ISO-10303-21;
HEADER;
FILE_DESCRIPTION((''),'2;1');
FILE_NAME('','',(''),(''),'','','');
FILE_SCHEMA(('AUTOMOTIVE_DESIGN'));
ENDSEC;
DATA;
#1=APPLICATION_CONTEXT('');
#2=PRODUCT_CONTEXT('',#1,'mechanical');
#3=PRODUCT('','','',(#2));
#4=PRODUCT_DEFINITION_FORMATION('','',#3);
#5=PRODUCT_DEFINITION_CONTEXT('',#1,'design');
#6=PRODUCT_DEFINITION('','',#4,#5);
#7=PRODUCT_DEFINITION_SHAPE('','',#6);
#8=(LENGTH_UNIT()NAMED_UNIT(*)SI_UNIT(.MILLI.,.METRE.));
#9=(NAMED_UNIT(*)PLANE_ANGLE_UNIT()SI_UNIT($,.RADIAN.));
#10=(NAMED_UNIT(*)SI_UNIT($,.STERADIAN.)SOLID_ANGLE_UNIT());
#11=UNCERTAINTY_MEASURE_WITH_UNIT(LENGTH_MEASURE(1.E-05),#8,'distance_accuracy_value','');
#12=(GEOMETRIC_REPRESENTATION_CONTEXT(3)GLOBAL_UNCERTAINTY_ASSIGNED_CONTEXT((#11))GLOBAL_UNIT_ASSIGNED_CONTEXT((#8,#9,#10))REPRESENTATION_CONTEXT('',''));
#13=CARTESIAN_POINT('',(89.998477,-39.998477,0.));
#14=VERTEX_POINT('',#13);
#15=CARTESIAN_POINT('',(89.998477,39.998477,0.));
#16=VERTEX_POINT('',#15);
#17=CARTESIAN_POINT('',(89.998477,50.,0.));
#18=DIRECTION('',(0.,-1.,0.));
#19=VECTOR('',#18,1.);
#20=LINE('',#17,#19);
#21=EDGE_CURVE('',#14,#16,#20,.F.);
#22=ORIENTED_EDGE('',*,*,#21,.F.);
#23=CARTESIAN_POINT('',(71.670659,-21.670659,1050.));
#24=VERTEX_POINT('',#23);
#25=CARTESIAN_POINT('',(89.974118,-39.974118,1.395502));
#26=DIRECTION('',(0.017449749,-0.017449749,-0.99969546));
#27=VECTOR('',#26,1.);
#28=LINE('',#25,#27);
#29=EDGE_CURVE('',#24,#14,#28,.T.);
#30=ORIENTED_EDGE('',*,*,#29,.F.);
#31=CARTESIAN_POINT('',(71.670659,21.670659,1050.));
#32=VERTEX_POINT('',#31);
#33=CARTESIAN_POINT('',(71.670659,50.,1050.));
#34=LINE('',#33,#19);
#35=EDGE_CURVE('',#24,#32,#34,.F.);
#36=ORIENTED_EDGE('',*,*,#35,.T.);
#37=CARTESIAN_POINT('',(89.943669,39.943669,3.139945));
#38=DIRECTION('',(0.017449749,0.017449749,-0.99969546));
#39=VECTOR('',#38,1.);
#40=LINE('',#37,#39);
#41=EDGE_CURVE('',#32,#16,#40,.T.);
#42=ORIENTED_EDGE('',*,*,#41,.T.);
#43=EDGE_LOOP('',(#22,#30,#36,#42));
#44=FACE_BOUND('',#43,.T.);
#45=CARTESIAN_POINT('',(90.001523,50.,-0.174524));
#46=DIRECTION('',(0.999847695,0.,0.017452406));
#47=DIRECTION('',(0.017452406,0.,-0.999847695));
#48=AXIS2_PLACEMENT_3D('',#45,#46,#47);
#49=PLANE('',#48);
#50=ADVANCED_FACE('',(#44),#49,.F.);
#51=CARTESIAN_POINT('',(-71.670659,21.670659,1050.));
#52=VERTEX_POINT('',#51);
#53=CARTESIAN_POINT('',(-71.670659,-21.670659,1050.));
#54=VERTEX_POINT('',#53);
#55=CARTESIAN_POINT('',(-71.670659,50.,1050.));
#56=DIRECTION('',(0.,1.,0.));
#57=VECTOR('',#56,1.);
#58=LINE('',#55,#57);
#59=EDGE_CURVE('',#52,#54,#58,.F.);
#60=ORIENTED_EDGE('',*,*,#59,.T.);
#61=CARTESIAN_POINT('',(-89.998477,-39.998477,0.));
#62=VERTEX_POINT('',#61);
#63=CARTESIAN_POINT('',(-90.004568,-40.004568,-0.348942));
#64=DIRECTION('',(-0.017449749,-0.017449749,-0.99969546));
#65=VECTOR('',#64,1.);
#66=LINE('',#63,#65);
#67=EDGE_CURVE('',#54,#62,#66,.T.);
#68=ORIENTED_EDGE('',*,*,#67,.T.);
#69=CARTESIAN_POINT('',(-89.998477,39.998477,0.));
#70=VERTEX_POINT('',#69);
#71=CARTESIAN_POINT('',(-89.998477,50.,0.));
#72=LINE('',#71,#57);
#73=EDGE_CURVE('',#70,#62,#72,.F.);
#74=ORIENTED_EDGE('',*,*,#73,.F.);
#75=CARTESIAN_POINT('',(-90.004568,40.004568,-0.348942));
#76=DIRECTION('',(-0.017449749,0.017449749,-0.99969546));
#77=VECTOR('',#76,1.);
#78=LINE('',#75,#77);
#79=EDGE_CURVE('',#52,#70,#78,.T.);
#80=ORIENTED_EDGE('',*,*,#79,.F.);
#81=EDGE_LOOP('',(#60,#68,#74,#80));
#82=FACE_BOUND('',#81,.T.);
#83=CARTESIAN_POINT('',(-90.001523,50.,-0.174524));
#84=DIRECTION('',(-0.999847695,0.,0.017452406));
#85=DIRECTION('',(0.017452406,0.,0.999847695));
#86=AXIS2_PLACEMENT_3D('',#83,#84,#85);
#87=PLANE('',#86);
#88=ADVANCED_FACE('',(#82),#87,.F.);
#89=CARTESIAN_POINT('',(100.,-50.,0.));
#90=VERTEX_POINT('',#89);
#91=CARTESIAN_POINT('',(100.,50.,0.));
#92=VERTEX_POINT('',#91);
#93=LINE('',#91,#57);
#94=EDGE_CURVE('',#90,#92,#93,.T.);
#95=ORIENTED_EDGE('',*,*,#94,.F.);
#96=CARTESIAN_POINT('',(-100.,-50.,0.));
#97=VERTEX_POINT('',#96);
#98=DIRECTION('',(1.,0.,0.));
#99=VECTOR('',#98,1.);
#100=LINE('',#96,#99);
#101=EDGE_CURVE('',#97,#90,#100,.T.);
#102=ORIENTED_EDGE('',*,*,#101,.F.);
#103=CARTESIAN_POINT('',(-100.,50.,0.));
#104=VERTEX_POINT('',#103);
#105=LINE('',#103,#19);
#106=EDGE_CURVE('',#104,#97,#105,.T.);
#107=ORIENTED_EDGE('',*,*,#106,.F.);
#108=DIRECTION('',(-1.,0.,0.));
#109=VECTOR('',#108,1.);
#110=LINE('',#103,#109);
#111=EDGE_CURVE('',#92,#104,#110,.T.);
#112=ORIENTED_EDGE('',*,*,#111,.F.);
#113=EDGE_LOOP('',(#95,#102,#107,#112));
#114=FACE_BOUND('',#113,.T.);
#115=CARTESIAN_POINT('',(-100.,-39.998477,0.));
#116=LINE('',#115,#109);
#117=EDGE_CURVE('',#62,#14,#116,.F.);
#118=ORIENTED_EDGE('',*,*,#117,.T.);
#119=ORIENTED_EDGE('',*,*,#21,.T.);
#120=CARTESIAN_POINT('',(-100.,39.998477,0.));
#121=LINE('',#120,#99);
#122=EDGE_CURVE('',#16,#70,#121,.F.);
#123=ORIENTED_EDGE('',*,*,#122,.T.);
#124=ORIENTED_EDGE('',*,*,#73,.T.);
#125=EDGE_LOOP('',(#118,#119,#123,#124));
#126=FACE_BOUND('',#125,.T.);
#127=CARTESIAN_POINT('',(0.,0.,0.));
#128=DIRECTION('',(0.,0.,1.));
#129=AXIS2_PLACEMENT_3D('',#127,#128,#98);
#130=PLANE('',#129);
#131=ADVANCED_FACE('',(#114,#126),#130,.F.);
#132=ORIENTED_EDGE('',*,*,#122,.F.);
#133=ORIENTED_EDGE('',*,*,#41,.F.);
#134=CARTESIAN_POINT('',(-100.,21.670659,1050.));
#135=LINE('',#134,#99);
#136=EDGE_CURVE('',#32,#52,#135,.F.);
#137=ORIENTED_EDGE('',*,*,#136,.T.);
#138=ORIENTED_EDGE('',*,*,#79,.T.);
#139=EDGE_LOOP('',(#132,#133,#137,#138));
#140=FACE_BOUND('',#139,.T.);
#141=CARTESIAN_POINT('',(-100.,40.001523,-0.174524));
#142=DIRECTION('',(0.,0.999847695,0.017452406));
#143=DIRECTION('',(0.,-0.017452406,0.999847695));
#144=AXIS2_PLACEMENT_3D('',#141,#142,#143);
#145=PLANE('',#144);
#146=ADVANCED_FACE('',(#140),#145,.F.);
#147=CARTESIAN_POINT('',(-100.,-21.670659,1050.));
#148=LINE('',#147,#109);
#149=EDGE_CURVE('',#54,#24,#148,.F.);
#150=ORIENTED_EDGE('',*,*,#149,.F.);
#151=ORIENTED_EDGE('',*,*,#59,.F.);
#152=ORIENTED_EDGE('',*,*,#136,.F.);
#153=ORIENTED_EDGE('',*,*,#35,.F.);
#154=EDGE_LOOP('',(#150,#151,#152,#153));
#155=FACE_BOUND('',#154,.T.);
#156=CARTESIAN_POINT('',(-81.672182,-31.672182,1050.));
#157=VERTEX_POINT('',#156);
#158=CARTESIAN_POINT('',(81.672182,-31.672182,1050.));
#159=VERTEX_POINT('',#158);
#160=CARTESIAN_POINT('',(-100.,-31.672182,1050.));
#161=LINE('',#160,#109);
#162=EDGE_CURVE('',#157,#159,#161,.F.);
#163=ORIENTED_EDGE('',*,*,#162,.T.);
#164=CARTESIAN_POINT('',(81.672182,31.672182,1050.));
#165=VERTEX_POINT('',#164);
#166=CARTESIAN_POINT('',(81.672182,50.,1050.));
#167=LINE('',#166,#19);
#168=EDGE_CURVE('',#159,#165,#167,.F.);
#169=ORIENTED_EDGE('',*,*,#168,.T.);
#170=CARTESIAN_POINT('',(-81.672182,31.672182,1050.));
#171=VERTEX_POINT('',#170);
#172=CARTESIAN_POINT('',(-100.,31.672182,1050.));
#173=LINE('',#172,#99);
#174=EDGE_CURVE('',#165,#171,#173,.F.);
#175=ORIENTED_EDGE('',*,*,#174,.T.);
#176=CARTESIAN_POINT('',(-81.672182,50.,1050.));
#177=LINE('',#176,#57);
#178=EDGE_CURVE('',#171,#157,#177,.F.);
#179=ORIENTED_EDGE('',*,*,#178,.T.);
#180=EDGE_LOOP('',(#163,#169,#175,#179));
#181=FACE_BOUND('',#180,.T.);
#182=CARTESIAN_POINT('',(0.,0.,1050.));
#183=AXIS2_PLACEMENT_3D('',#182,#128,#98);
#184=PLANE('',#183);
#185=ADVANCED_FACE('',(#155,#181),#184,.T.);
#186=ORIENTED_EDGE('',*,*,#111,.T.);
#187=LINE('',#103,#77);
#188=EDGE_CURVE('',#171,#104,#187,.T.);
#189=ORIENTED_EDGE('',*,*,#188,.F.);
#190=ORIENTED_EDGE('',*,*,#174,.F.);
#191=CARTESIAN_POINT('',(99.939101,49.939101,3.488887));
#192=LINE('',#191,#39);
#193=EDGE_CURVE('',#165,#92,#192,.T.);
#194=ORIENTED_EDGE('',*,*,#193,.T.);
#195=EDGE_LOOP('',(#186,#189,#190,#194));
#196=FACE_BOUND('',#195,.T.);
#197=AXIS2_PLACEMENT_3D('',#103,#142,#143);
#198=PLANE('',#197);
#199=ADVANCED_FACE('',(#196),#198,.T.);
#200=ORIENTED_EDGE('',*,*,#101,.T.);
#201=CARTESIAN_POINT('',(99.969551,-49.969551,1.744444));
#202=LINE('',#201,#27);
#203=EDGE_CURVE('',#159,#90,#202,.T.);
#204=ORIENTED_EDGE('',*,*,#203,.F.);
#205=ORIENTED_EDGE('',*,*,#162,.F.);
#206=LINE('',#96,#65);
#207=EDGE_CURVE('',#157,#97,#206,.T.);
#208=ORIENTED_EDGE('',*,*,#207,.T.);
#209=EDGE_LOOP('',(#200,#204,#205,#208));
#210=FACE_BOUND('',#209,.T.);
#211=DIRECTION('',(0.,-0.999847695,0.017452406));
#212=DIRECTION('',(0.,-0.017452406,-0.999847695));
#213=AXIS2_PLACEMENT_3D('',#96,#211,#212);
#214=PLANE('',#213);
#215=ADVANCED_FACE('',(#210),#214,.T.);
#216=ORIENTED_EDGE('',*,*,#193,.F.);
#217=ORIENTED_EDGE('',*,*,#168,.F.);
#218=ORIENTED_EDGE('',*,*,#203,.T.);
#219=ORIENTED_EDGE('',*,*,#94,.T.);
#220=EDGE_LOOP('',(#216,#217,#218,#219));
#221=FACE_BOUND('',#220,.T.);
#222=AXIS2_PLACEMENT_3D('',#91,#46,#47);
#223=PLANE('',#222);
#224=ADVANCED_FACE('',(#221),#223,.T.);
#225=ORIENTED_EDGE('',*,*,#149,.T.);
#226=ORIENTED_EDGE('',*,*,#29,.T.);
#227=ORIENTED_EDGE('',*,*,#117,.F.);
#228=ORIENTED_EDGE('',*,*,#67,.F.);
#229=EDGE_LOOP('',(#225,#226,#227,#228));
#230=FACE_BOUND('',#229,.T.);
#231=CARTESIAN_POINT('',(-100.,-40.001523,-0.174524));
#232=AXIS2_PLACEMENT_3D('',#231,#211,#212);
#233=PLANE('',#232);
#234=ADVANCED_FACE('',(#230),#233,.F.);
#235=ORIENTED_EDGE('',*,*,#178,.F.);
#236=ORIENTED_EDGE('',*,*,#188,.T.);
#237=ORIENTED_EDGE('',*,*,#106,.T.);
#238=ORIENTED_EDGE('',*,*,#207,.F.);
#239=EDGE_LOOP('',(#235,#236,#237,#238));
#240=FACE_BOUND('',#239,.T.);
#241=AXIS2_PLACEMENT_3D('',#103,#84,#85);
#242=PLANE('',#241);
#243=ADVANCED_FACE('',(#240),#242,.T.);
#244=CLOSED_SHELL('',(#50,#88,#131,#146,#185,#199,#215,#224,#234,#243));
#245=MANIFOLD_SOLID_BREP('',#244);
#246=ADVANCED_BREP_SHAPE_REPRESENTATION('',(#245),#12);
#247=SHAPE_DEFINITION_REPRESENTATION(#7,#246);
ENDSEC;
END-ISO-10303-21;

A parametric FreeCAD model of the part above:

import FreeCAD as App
import Part
import Sketcher

V = App.Vector
Q = App.Units.Quantity


def faces_at(feature, points):
    """Names of the faces that lie closest to the given points."""
    faces = feature.Shape.Faces
    near = lambda p: min(range(len(faces)), key=lambda i: faces[i].distToShape(Part.Vertex(*p))[0])
    return sorted({f"Face{near(p) + 1}" for p in points})

doc = App.newDocument("Part")
body = doc.addObject("PartDesign::Body", "Body")

sketch1 = doc.addObject("Sketcher::SketchObject", "Sketch")
body.addObject(sketch1)
sketch1.AttachmentSupport = (doc.XY_Plane, [""])
sketch1.MapMode = "FlatFace"
sketch1.addGeometry([
    Part.LineSegment(V(-100, 50, 0), V(-100, -50, 0)),
    Part.LineSegment(V(-100, -50, 0), V(100, -50, 0)),
    Part.LineSegment(V(100, -50, 0), V(100, 50, 0)),
    Part.LineSegment(V(100, 50, 0), V(-100, 50, 0)),
], False)
sketch1.addConstraint([
    Sketcher.Constraint("Coincident", 0, 2, 1, 1),
    Sketcher.Constraint("Coincident", 1, 2, 2, 1),
    Sketcher.Constraint("Coincident", 2, 2, 3, 1),
    Sketcher.Constraint("Coincident", 3, 2, 0, 1),
    Sketcher.Constraint("Vertical", 0),
    Sketcher.Constraint("Horizontal", 1),
    Sketcher.Constraint("Vertical", 2),
    Sketcher.Constraint("Horizontal", 3),
    Sketcher.Constraint("Symmetric", 0, 2, 2, 2, -1, 1),
    Sketcher.Constraint("DistanceX", 1, 1, 1, 2, Q("200 mm")),
    Sketcher.Constraint("DistanceY", 0, 2, 0, 1, Q("100 mm")),
])
pad1 = doc.addObject("PartDesign::Pad", "Pad")
body.addObject(pad1)
pad1.Profile = sketch1
pad1.Length = 1050
pad1.TaperAngle = -1
doc.recompute()

thickness = doc.addObject("PartDesign::Thickness", "Thickness")
body.addObject(thickness)
thickness.Base = (pad1, faces_at(pad1, [(0, 0, 1050), (0, 0, 0)]))
thickness.Value = 10
thickness.Reversed = True
thickness.Join = "Intersection"

doc.recompute()
